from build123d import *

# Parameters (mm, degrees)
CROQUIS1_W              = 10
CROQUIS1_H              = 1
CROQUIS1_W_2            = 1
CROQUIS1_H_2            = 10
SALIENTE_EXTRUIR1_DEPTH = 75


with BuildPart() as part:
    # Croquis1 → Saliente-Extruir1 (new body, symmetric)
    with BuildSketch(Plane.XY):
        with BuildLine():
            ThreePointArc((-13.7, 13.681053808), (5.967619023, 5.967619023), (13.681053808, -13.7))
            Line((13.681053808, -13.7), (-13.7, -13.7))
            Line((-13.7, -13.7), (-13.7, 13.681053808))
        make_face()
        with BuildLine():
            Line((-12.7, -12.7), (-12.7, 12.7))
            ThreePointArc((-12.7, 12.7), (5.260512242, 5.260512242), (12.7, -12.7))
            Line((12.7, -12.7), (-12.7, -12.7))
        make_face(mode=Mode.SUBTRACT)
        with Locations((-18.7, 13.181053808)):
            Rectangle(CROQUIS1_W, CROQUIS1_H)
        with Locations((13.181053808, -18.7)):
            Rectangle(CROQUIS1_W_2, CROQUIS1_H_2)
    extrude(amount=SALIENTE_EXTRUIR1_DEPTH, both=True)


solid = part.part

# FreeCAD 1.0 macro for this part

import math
import FreeCAD as App
import Part
import Sketcher

V = App.Vector
Q = App.Units.Quantity

doc = App.newDocument("Part")
body = doc.addObject("PartDesign::Body", "Body")

# Sketch on XY plane
sketch1 = body.newObject("Sketcher::SketchObject", "Sketch")
sketch1.AttachmentSupport = (doc.getObject("XY_Plane"), [""])
sketch1.MapMode = "FlatFace"
sketch1.addGeometry([
    Part.ArcOfCircle(Part.Circle(V(-12.7, -12.7, 0), V(0, 0, 1), 26.4), math.radians(-2), math.radians(92)),  # 0
    Part.LineSegment(V(-13.7, 13.7, 0), V(-23.7, 13.7, 0)),  # 1
    Part.LineSegment(V(-23.7, 13.7, 0), V(-23.7, 12.7, 0)),  # 2
    Part.LineSegment(V(-23.7, 12.7, 0), V(-13.7, 12.7, 0)),  # 3
    Part.LineSegment(V(-13.7, 12.7, 0), V(-13.7, -13.7, 0)),  # 4
    Part.LineSegment(V(-13.7, -13.7, 0), V(12.7, -13.7, 0)),  # 5
    Part.LineSegment(V(12.7, -13.7, 0), V(12.7, -23.7, 0)),  # 6
    Part.LineSegment(V(12.7, -23.7, 0), V(13.7, -23.7, 0)),  # 7
    Part.LineSegment(V(13.7, -23.7, 0), V(13.7, -13.7, 0)),  # 8
    Part.LineSegment(V(-12.7, -12.7, 0), V(-12.7, 12.7, 0)),  # 9
    Part.ArcOfCircle(Part.Circle(V(-12.7, -12.7, 0), V(0, 0, 1), 25.4), math.radians(0), math.radians(90)),  # 10
    Part.LineSegment(V(12.7, -12.7, 0), V(-12.7, -12.7, 0)),  # 11
], False)
sketch1.addConstraint([
    Sketcher.Constraint("Coincident", 0, 2, 1, 1),
    Sketcher.Constraint("Coincident", 1, 2, 2, 1),
    Sketcher.Constraint("Coincident", 2, 2, 3, 1),
    Sketcher.Constraint("Coincident", 3, 2, 4, 1),
    Sketcher.Constraint("Coincident", 4, 2, 5, 1),
    Sketcher.Constraint("Coincident", 5, 2, 6, 1),
    Sketcher.Constraint("Coincident", 6, 2, 7, 1),
    Sketcher.Constraint("Coincident", 7, 2, 8, 1),
    Sketcher.Constraint("Coincident", 8, 2, 0, 1),
    Sketcher.Constraint("Coincident", 9, 2, 10, 2),
    Sketcher.Constraint("Coincident", 10, 1, 11, 1),
    Sketcher.Constraint("Coincident", 11, 2, 9, 1),
    Sketcher.Constraint("Horizontal", 1),
    Sketcher.Constraint("Vertical", 2),
    Sketcher.Constraint("Horizontal", 3),
    Sketcher.Constraint("Vertical", 4),
    Sketcher.Constraint("Horizontal", 5),
    Sketcher.Constraint("Vertical", 6),
    Sketcher.Constraint("Horizontal", 7),
    Sketcher.Constraint("Vertical", 8),
    Sketcher.Constraint("Vertical", 9),
    Sketcher.Constraint("Horizontal", 11),
    Sketcher.Constraint("Coincident", 10, 3, 0, 3),
    Sketcher.Constraint("Coincident", 11, 2, 0, 3),
    Sketcher.Constraint("Symmetric", 9, 2, 10, 1, -1, 1),
    Sketcher.Constraint("Horizontal", 5, 2, 8, 2),
    Sketcher.Constraint("Vertical", 0, 2, 3, 2),
    Sketcher.Constraint("Equal", 7, 2),
    Sketcher.Constraint("Equal", 5, 4),
    Sketcher.Constraint("Equal", 3, 6),
    Sketcher.Constraint("Radius", 0, Q("26.4 mm")),
    Sketcher.Constraint("Radius", 10, Q("25.4 mm")),
    Sketcher.Constraint("DistanceX", 1, 2, 1, 1, Q("10 mm")),
    Sketcher.Constraint("DistanceX", 7, 1, 7, 2, Q("1 mm")),
    Sketcher.Constraint("DistanceX", 0, 2, 10, 3, Q("1 mm")),
])
pad1 = body.newObject("PartDesign::Pad", "Pad")
pad1.Profile = sketch1
pad1.Length = 150
pad1.Midplane = True

doc.recompute()
